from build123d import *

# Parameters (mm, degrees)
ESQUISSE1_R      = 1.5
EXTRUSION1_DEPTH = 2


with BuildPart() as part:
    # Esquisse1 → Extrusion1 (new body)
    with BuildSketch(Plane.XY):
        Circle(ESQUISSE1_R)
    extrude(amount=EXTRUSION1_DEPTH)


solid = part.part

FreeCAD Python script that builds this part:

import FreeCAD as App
import Part
import Sketcher

V = App.Vector
Q = App.Units.Quantity

doc = App.newDocument("Part")
body = doc.addObject("PartDesign::Body", "Body")

sketch1 = doc.addObject("Sketcher::SketchObject", "Sketch")
body.addObject(sketch1)
sketch1.AttachmentSupport = (doc.XY_Plane, [""])
sketch1.MapMode = "FlatFace"
sketch1.addGeometry(Part.Circle(V(0, 0, 0), V(0, 0, 1), 1.5), False)
sketch1.addConstraint([
    Sketcher.Constraint("Coincident", 0, 3, -1, 1),
    Sketcher.Constraint("Diameter", 0, Q("3 mm")),
])
pad1 = doc.addObject("PartDesign::Pad", "Pad")
body.addObject(pad1)
pad1.Profile = sketch1
pad1.Length = 2

doc.recompute()
